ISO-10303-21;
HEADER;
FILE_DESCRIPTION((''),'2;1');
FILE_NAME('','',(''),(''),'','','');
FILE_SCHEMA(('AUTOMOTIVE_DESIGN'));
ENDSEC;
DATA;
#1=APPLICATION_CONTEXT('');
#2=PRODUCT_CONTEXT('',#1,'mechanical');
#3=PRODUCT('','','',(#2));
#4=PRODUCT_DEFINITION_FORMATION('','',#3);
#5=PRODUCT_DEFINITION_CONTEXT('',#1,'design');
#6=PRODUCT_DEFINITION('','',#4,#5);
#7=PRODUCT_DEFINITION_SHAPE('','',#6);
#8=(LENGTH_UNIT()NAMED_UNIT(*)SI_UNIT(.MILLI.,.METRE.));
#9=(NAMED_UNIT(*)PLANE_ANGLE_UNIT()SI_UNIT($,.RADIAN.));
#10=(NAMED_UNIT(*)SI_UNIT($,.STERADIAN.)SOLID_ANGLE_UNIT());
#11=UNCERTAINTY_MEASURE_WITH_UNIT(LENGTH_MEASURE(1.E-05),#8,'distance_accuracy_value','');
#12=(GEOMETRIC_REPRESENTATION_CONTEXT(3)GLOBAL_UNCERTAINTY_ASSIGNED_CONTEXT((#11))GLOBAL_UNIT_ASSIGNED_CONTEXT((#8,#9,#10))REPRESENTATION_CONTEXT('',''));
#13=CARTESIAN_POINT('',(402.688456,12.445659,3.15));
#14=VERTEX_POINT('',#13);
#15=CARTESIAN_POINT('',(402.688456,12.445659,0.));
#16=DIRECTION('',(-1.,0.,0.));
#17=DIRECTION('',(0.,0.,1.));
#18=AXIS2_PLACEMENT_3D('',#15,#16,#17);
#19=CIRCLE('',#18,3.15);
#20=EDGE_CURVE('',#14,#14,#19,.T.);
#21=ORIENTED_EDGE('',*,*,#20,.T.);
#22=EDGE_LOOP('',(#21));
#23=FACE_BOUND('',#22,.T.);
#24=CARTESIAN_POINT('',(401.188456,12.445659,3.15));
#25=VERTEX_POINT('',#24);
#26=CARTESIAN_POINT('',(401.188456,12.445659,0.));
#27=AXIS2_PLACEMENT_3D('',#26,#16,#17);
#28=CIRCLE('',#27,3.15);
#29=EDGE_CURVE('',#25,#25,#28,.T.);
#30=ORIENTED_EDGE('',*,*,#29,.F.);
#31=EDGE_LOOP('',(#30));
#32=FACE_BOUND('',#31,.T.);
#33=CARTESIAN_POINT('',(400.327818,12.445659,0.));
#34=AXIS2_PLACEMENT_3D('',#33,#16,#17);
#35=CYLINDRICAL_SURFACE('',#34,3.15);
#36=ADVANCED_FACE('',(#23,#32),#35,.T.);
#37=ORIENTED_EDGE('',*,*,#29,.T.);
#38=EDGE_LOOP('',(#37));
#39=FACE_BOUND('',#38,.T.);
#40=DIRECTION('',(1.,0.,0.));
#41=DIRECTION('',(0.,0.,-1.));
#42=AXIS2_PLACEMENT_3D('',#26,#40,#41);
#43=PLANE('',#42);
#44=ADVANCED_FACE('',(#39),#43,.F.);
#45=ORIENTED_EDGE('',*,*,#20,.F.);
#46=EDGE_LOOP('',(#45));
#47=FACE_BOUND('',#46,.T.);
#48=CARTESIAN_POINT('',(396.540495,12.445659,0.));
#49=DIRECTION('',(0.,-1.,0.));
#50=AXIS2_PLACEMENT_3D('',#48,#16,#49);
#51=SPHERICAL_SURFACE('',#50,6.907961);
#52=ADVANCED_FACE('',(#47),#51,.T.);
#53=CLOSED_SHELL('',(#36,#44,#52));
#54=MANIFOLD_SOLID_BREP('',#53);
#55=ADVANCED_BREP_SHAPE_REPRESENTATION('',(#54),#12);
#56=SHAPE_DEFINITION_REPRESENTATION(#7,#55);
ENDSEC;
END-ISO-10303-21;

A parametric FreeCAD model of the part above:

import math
import FreeCAD as App
import Part
import Sketcher

V = App.Vector

doc = App.newDocument("Part")
body = doc.addObject("PartDesign::Body", "Body")

# Sketch on XY plane
sketch1 = doc.addObject("Sketcher::SketchObject", "Sketch")
body.addObject(sketch1)
sketch1.AttachmentSupport = (doc.XY_Plane, [""])
sketch1.MapMode = "FlatFace"
sketch1.addGeometry(Part.LineSegment(V(401.2, 15.6, 0), V(401.2, 12.4, 0)), False)
sketch1.addGeometry(Part.LineSegment(V(401.2, 12.4, 0), V(403.4, 12.4, 0)), False)
sketch1.addGeometry(Part.ArcOfCircle(Part.Circle(V(396.5, 12.4, 0), V(0, 0, 1), 6.9), math.radians(0), math.radians(27)), False)
sketch1.addGeometry(Part.LineSegment(V(402.7, 15.6, 0), V(401.2, 15.6, 0)), False)
sketch1.addGeometry(Part.LineSegment(V(396.5, 12.4, 0), V(403.4, 12.4, 0)), True)  # axis
sketch1.addConstraint(Sketcher.Constraint("Coincident", 0, 2, 1, 1))
sketch1.addConstraint(Sketcher.Constraint("Coincident", 1, 2, 2, 1))
sketch1.addConstraint(Sketcher.Constraint("Coincident", 2, 2, 3, 1))
sketch1.addConstraint(Sketcher.Constraint("Coincident", 3, 2, 0, 1))
sketch1.addConstraint(Sketcher.Constraint("Vertical", 0))
sketch1.addConstraint(Sketcher.Constraint("Horizontal", 1))
sketch1.addConstraint(Sketcher.Constraint("Horizontal", 3))
sketch1.addConstraint(Sketcher.Constraint("Horizontal", 4))
sketch1.addConstraint(Sketcher.Constraint("Coincident", 4, 1, 2, 3))
sketch1.addConstraint(Sketcher.Constraint("Coincident", 4, 2, 1, 2))
sketch1.addConstraint(Sketcher.Constraint("DistanceX", 3, 2, 3, 1, 1.5))
sketch1.addConstraint(Sketcher.Constraint("DistanceX", 1, 1, 1, 2, 2.26))
sketch1.addConstraint(Sketcher.Constraint("DistanceY", 0, 2, 0, 1, 3.15))
sketch1.addConstraint(Sketcher.Constraint("DistanceY", -1, 1, 2, 3, 12.445659))
sketch1.addConstraint(Sketcher.Constraint("DistanceX", -1, 1, 2, 3, 396.540495))
revolution = doc.addObject("PartDesign::Revolution", "Revolution")
body.addObject(revolution)
revolution.Profile = sketch1
revolution.ReferenceAxis = (sketch1, ["Axis0"])
revolution.Angle = 360

doc.recompute()
